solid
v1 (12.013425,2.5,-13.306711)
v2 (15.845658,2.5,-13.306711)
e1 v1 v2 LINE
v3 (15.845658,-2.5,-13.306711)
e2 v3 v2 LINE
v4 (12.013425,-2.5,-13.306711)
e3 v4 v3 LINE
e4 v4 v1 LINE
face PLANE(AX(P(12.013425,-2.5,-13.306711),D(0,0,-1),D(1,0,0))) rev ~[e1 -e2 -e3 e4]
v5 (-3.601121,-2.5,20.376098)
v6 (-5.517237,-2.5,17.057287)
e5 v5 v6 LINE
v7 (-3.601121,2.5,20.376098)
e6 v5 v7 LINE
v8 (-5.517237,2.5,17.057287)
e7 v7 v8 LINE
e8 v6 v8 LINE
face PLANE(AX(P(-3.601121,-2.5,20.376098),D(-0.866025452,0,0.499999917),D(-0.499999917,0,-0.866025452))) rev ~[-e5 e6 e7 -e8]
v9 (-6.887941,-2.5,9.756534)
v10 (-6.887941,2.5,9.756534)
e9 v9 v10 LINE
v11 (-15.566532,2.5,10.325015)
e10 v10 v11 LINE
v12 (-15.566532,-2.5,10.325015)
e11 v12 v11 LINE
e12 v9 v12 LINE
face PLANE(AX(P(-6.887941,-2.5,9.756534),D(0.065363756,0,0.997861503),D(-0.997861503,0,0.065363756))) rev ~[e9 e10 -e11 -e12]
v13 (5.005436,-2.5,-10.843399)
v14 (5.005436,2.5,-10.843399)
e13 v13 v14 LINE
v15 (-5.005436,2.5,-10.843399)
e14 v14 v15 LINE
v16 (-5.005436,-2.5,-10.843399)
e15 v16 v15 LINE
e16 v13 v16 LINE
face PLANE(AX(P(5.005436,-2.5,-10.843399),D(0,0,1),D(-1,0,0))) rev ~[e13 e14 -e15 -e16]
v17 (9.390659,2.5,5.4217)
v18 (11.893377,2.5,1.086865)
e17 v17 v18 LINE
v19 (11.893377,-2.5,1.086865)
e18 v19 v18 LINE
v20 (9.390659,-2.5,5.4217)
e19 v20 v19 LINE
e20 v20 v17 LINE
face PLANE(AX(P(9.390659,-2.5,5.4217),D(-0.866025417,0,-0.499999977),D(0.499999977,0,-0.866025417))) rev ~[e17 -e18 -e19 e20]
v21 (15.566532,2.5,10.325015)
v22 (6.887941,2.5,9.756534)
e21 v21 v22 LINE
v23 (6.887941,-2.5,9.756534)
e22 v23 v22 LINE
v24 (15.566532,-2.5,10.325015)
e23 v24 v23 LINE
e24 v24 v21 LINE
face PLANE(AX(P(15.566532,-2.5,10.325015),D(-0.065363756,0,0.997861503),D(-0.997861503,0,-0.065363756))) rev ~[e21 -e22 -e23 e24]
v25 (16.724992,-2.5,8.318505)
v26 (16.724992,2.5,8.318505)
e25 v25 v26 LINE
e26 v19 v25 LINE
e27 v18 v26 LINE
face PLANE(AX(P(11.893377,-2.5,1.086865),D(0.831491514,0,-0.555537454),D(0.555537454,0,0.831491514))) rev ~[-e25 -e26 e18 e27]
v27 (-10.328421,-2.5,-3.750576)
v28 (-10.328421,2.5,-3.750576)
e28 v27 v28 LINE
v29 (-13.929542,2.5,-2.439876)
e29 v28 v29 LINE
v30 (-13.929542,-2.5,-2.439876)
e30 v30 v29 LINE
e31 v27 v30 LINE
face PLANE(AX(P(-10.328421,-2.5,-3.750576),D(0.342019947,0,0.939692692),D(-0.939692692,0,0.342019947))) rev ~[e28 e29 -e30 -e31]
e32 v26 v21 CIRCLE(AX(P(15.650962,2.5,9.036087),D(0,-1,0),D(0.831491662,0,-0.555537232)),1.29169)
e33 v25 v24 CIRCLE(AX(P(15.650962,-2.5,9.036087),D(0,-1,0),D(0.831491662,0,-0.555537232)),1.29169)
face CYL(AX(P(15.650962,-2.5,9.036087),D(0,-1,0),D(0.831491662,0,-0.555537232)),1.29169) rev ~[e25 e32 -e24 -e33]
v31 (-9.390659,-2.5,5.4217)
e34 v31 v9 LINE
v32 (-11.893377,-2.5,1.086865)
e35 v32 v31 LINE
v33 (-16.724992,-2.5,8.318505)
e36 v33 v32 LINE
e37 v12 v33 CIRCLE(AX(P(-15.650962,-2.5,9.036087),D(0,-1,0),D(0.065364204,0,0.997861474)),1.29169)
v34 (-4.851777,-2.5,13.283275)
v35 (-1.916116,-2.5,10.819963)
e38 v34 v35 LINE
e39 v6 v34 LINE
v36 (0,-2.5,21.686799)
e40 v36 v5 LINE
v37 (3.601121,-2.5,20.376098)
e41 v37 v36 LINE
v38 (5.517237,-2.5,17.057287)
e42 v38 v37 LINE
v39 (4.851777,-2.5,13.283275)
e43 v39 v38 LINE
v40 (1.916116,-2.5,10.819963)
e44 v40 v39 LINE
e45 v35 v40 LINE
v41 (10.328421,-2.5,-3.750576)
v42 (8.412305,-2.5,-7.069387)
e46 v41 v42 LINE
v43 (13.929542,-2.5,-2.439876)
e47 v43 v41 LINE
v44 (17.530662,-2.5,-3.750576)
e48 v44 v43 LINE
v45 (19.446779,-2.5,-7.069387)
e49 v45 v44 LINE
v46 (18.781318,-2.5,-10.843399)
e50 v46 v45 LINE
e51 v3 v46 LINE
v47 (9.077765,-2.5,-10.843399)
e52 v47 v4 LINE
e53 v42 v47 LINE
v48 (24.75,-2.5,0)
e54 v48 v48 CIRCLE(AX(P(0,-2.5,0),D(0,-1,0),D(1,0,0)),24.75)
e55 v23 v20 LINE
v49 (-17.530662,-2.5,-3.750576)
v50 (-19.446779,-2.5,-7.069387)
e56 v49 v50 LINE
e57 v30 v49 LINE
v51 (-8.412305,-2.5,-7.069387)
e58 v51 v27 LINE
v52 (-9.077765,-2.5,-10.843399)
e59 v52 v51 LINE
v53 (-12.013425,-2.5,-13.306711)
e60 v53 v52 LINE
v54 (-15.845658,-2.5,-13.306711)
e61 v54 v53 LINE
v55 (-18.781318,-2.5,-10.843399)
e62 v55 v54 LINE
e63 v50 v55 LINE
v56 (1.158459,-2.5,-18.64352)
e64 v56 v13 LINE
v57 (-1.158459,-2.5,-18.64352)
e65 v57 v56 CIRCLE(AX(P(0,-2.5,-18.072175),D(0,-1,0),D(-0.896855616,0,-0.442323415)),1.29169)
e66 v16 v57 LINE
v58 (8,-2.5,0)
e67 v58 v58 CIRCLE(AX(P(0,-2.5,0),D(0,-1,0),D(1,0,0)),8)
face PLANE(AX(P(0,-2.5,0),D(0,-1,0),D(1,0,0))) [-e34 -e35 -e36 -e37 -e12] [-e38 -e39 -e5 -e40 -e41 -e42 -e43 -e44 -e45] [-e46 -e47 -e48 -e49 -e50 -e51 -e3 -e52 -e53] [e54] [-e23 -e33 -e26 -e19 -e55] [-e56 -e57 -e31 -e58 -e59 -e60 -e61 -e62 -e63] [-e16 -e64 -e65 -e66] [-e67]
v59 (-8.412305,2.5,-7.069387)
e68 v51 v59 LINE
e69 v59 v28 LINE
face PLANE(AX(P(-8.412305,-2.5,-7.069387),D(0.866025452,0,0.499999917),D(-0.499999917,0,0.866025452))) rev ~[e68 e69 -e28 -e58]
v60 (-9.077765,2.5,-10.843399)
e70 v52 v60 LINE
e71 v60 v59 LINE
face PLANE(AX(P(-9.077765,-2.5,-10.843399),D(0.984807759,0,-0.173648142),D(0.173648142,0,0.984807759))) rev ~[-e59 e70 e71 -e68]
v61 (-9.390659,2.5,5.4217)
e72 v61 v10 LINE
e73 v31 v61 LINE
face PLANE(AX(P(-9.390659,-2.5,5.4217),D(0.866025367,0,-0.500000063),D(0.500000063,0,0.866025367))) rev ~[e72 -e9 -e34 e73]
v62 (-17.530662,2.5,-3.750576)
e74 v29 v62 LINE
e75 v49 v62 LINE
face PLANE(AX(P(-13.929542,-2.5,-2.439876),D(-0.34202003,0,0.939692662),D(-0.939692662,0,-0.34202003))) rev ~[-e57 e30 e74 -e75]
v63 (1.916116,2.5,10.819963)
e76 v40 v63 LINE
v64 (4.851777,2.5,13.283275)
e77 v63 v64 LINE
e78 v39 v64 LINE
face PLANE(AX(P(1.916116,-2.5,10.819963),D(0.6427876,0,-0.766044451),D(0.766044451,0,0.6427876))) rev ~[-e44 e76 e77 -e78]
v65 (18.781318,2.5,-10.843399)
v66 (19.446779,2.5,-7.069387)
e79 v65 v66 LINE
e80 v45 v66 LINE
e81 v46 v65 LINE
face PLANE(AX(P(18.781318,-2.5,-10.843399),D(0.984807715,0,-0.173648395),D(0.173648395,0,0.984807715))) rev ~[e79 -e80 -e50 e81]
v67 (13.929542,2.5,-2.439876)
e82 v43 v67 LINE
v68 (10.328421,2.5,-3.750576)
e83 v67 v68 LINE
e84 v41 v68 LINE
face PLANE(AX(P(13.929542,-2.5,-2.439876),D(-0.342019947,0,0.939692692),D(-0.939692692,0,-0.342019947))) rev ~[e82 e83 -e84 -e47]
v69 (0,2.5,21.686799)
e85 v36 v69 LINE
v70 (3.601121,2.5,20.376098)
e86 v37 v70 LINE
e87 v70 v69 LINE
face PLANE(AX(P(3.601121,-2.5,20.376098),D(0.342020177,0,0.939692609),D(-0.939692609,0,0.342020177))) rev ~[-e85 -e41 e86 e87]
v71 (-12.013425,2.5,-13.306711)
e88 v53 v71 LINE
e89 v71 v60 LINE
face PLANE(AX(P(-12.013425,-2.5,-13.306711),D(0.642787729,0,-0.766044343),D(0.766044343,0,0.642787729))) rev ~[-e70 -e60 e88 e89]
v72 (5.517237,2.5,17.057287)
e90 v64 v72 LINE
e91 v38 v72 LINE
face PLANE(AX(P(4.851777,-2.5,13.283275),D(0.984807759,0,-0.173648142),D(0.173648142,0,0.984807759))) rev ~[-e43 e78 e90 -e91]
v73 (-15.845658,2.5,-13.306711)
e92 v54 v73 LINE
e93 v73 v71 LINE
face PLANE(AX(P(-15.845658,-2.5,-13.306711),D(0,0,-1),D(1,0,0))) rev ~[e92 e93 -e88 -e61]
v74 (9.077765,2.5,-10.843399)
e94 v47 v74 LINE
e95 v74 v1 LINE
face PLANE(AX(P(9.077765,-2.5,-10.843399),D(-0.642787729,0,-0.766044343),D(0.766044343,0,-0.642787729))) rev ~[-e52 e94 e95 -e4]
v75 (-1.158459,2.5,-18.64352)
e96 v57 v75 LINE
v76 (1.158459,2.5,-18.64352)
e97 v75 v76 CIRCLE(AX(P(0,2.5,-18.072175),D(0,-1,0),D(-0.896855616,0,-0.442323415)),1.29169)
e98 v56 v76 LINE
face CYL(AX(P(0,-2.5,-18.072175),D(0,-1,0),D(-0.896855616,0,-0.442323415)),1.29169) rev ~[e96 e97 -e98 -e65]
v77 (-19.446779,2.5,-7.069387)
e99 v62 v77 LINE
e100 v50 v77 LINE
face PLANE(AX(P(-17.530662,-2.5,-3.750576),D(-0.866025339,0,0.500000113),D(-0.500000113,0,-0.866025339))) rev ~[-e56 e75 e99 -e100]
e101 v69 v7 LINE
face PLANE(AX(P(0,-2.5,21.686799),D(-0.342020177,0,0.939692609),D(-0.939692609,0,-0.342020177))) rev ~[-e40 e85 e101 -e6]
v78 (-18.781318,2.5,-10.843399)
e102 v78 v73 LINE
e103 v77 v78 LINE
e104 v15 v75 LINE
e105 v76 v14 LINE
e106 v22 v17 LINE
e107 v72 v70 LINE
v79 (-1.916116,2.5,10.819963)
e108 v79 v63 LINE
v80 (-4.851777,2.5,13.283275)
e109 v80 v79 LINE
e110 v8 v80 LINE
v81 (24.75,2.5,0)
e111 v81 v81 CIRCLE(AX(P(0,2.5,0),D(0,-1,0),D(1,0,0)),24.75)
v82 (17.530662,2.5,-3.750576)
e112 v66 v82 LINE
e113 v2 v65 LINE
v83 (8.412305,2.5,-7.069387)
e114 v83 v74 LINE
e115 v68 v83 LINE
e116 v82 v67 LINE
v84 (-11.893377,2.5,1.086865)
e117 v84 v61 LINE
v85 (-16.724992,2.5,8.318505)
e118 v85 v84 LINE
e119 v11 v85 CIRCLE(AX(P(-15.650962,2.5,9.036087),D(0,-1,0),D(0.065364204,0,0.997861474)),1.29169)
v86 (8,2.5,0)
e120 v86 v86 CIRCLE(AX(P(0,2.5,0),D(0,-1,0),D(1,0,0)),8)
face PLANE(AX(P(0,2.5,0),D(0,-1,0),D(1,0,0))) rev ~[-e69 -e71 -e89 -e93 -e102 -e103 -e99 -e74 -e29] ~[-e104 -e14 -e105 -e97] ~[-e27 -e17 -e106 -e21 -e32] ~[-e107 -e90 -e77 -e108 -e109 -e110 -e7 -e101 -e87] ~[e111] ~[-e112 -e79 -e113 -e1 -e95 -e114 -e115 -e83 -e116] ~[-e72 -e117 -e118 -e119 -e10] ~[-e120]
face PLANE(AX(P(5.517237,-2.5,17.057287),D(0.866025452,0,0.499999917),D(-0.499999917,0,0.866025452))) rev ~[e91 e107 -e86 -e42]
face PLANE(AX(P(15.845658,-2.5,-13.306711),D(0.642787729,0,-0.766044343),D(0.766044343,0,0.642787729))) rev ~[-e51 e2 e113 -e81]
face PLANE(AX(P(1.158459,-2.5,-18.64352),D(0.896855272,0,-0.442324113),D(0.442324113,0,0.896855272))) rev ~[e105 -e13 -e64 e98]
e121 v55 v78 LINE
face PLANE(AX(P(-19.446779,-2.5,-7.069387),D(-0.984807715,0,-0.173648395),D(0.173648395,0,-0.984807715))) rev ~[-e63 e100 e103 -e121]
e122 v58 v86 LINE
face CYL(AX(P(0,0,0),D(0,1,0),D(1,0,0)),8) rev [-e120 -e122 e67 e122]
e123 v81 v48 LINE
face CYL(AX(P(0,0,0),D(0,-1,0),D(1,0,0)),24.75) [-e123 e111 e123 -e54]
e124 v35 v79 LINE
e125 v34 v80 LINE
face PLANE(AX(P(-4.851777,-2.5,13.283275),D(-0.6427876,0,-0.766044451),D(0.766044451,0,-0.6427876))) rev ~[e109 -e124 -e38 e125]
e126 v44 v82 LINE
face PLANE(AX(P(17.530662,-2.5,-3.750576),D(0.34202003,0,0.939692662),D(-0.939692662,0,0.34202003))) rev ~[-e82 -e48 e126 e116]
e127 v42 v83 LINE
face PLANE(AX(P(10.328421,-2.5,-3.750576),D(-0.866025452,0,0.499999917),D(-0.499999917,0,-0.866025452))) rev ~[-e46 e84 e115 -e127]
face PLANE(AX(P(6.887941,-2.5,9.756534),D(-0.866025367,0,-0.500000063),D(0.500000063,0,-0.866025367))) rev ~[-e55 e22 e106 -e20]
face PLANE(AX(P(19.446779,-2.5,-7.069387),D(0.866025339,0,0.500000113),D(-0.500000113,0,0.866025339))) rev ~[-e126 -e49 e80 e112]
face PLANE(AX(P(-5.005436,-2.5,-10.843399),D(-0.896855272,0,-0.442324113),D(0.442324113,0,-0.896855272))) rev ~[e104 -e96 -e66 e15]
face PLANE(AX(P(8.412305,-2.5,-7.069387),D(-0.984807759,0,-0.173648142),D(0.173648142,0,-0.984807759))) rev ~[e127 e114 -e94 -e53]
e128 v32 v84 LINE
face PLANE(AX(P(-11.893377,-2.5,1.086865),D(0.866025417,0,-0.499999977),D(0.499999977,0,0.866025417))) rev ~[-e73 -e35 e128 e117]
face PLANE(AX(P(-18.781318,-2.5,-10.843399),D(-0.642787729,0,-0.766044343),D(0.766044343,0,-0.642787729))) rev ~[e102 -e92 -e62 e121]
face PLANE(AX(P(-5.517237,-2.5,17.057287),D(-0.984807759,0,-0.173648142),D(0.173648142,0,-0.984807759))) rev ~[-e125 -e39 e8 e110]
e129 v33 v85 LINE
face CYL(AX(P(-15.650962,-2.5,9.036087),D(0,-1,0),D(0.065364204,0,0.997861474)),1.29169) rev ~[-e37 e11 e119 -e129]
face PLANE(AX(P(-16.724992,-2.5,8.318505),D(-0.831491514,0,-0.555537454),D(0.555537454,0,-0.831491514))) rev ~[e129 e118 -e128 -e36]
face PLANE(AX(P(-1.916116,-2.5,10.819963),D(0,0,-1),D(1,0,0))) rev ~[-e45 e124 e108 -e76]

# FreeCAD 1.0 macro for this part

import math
import FreeCAD as App
import Part
import Sketcher

V = App.Vector
Q = App.Units.Quantity

doc = App.newDocument("Part")
body = doc.addObject("PartDesign::Body", "Body")

# Sketch on XZ plane
sketch1 = doc.addObject("Sketcher::SketchObject", "Sketch")
body.addObject(sketch1)
sketch1.AttachmentSupport = (doc.XZ_Plane, [""])
sketch1.MapMode = "FlatFace"
sketch1.addGeometry([
    Part.Circle(V(0, 0, 0), V(0, 0, 1), 25),
    Part.Circle(V(0, 0, 0), V(0, 0, 1), 8),
], False)
sketch1.addConstraint([
    Sketcher.Constraint("Coincident", 0, 3, -1, 1),
    Sketcher.Constraint("Coincident", 1, 3, -1, 1),
    Sketcher.Constraint("Diameter", 1, 16.0),
    Sketcher.Constraint("Diameter", 0, 49.5),
])
pad1 = doc.addObject("PartDesign::Pad", "Pad")
body.addObject(pad1)
pad1.Profile = sketch1
pad1.Length = 5
pad1.Midplane = True

# Sketch on XZ plane
sketch2 = doc.addObject("Sketcher::SketchObject", "Sketch001")
body.addObject(sketch2)
sketch2.AttachmentSupport = (doc.XZ_Plane, [""])
sketch2.MapMode = "FlatFace"
sketch2.AttachmentOffset = App.Placement(V(0, 0, 2.5), App.Rotation())
sketch2.addGeometry([
    Part.LineSegment(V(-1.9, 10.8, 0), V(1.9, 10.8, 0)),  # 0
    Part.LineSegment(V(1.9, 10.8, 0), V(4.9, 13.3, 0)),  # 1
    Part.LineSegment(V(4.9, 13.3, 0), V(5.5, 17.1, 0)),  # 2
    Part.LineSegment(V(5.5, 17.1, 0), V(3.6, 20.4, 0)),  # 3
    Part.LineSegment(V(3.6, 20.4, 0), V(0, 21.7, 0)),  # 4
    Part.LineSegment(V(0, 21.7, 0), V(-3.6, 20.4, 0)),  # 5
    Part.LineSegment(V(-3.6, 20.4, 0), V(-5.5, 17.1, 0)),  # 6
    Part.LineSegment(V(-5.5, 17.1, 0), V(-4.9, 13.3, 0)),  # 7
    Part.LineSegment(V(-4.9, 13.3, 0), V(-1.9, 10.8, 0)),  # 8
    Part.LineSegment(V(-19.4, -7.1, 0), V(-18.8, -10.8, 0)),  # 9
    Part.LineSegment(V(-18.8, -10.8, 0), V(-15.8, -13.3, 0)),  # 10
    Part.LineSegment(V(-15.8, -13.3, 0), V(-12, -13.3, 0)),  # 11
    Part.LineSegment(V(-12, -13.3, 0), V(-9.1, -10.8, 0)),  # 12
    Part.LineSegment(V(-9.1, -10.8, 0), V(-8.4, -7.1, 0)),  # 13
    Part.LineSegment(V(-8.4, -7.1, 0), V(-10.3, -3.8, 0)),  # 14
    Part.LineSegment(V(-10.3, -3.8, 0), V(-13.9, -2.4, 0)),  # 15
    Part.LineSegment(V(-13.9, -2.4, 0), V(-17.5, -3.8, 0)),  # 16
    Part.LineSegment(V(-17.5, -3.8, 0), V(-19.4, -7.1, 0)),  # 17
    Part.LineSegment(V(15.8, -13.3, 0), V(18.8, -10.8, 0)),  # 18
    Part.LineSegment(V(18.8, -10.8, 0), V(19.4, -7.1, 0)),  # 19
    Part.LineSegment(V(19.4, -7.1, 0), V(17.5, -3.8, 0)),  # 20
    Part.LineSegment(V(17.5, -3.8, 0), V(13.9, -2.4, 0)),  # 21
    Part.LineSegment(V(13.9, -2.4, 0), V(10.3, -3.8, 0)),  # 22
    Part.LineSegment(V(10.3, -3.8, 0), V(8.4, -7.1, 0)),  # 23
    Part.LineSegment(V(8.4, -7.1, 0), V(9.1, -10.8, 0)),  # 24
    Part.LineSegment(V(9.1, -10.8, 0), V(12, -13.3, 0)),  # 25
    Part.LineSegment(V(12, -13.3, 0), V(15.8, -13.3, 0)),  # 26
    Part.ArcOfCircle(Part.Circle(V(0, -18.1, 0), V(0, 0, 1), 1.3), math.radians(-154), math.radians(-26)),  # 27
    Part.LineSegment(V(1.2, -18.6, 0), V(5, -10.8, 0)),  # 28
    Part.LineSegment(V(5, -10.8, 0), V(-5, -10.8, 0)),  # 29
    Part.LineSegment(V(-5, -10.8, 0), V(-1.2, -18.6, 0)),  # 30
    Part.LineSegment(V(9.4, 5.4, 0), V(11.9, 1.1, 0)),  # 31
    Part.LineSegment(V(11.9, 1.1, 0), V(16.7, 8.3, 0)),  # 32
    Part.ArcOfCircle(Part.Circle(V(15.7, 9, 0), V(0, 0, 1), 1.3), math.radians(-34), math.radians(94)),  # 33
    Part.LineSegment(V(15.6, 10.3, 0), V(6.9, 9.8, 0)),  # 34
    Part.LineSegment(V(6.9, 9.8, 0), V(9.4, 5.4, 0)),  # 35
    Part.LineSegment(V(-9.4, 5.4, 0), V(-6.9, 9.8, 0)),  # 36
    Part.LineSegment(V(-6.9, 9.8, 0), V(-15.6, 10.3, 0)),  # 37
    Part.ArcOfCircle(Part.Circle(V(-15.7, 9, 0), V(0, 0, 1), 1.3), math.radians(86), math.radians(214)),  # 38
    Part.LineSegment(V(-16.7, 8.3, 0), V(-11.9, 1.1, 0)),  # 39
    Part.LineSegment(V(-11.9, 1.1, 0), V(-9.4, 5.4, 0)),  # 40
], False)
sketch2.addConstraint([
    Sketcher.Constraint("Coincident", 0, 2, 1, 1),
    Sketcher.Constraint("Coincident", 1, 2, 2, 1),
    Sketcher.Constraint("Coincident", 2, 2, 3, 1),
    Sketcher.Constraint("Coincident", 3, 2, 4, 1),
    Sketcher.Constraint("Coincident", 4, 2, 5, 1),
    Sketcher.Constraint("Coincident", 5, 2, 6, 1),
    Sketcher.Constraint("Coincident", 6, 2, 7, 1),
    Sketcher.Constraint("Coincident", 7, 2, 8, 1),
    Sketcher.Constraint("Coincident", 8, 2, 0, 1),
    Sketcher.Constraint("Coincident", 9, 2, 10, 1),
    Sketcher.Constraint("Coincident", 10, 2, 11, 1),
    Sketcher.Constraint("Coincident", 11, 2, 12, 1),
    Sketcher.Constraint("Coincident", 12, 2, 13, 1),
    Sketcher.Constraint("Coincident", 13, 2, 14, 1),
    Sketcher.Constraint("Coincident", 14, 2, 15, 1),
    Sketcher.Constraint("Coincident", 15, 2, 16, 1),
    Sketcher.Constraint("Coincident", 16, 2, 17, 1),
    Sketcher.Constraint("Coincident", 17, 2, 9, 1),
    Sketcher.Constraint("Coincident", 18, 2, 19, 1),
    Sketcher.Constraint("Coincident", 19, 2, 20, 1),
    Sketcher.Constraint("Coincident", 20, 2, 21, 1),
    Sketcher.Constraint("Coincident", 21, 2, 22, 1),
    Sketcher.Constraint("Coincident", 22, 2, 23, 1),
    Sketcher.Constraint("Coincident", 23, 2, 24, 1),
    Sketcher.Constraint("Coincident", 24, 2, 25, 1),
    Sketcher.Constraint("Coincident", 25, 2, 26, 1),
    Sketcher.Constraint("Coincident", 26, 2, 18, 1),
    Sketcher.Constraint("Tangent", 27, 2, 28, 1),
    Sketcher.Constraint("Coincident", 28, 2, 29, 1),
    Sketcher.Constraint("Coincident", 29, 2, 30, 1),
    Sketcher.Constraint("Tangent", 30, 2, 27, 1),
    Sketcher.Constraint("Coincident", 31, 2, 32, 1),
    Sketcher.Constraint("Tangent", 32, 2, 33, 1),
    Sketcher.Constraint("Tangent", 33, 2, 34, 1),
    Sketcher.Constraint("Coincident", 34, 2, 35, 1),
    Sketcher.Constraint("Coincident", 35, 2, 31, 1),
    Sketcher.Constraint("Coincident", 36, 2, 37, 1),
    Sketcher.Constraint("Tangent", 37, 2, 38, 1),
    Sketcher.Constraint("Tangent", 38, 2, 39, 1),
    Sketcher.Constraint("Coincident", 39, 2, 40, 1),
    Sketcher.Constraint("Coincident", 40, 2, 36, 1),
    Sketcher.Constraint("Horizontal", 0),
    Sketcher.Constraint("Horizontal", 11),
    Sketcher.Constraint("Horizontal", 26),
    Sketcher.Constraint("Horizontal", 29),
    Sketcher.Constraint("Equal", 27, 33),
    Sketcher.Constraint("Equal", 33, 38),
    Sketcher.Constraint("Symmetric", 33, 3, 38, 3, -2),
    Sketcher.Constraint("Symmetric", 3, 2, 5, 2, -2),
    Sketcher.Constraint("Symmetric", 2, 2, 6, 2, -2),
    Sketcher.Constraint("Symmetric", 1, 2, 7, 2, -2),
    Sketcher.Constraint("Symmetric", 9, 2, 18, 2, -2),
    Sketcher.Constraint("Symmetric", 17, 2, 19, 2, -2),
    Sketcher.Constraint("Symmetric", 16, 2, 20, 2, -2),
    Sketcher.Constraint("Symmetric", 15, 2, 21, 2, -2),
    Sketcher.Constraint("Symmetric", 14, 2, 22, 2, -2),
    Sketcher.Constraint("Symmetric", 13, 2, 23, 2, -2),
    Sketcher.Constraint("Symmetric", 12, 2, 24, 2, -2),
    Sketcher.Constraint("Symmetric", 11, 2, 25, 2, -2),
    Sketcher.Constraint("Symmetric", 27, 2, 30, 2, -2),
    Sketcher.Constraint("Symmetric", 34, 2, 36, 2, -2),
    Sketcher.Constraint("Symmetric", 31, 2, 39, 2, -2),
    Sketcher.Constraint("Symmetric", 35, 2, 40, 2, -2),
    Sketcher.Constraint("PointOnObject", 4, 2, -2),
    Sketcher.Constraint("Parallel", 7, 9),
    Sketcher.Constraint("Parallel", 8, 10),
    Sketcher.Constraint("Parallel", 1, 12),
    Sketcher.Constraint("Parallel", 2, 13),
    Sketcher.Constraint("Parallel", 3, 14),
    Sketcher.Constraint("Parallel", 4, 15),
    Sketcher.Constraint("Parallel", 5, 16),
    Sketcher.Constraint("Parallel", 6, 17),
    Sketcher.Constraint("Parallel", 12, 18),
    Sketcher.Constraint("Parallel", 10, 25),
    Sketcher.Constraint("Parallel", 20, 31),
    Sketcher.Constraint("Parallel", 31, 35),
    Sketcher.Constraint("Horizontal", 9, 2, 12, 2),
    Sketcher.Constraint("Horizontal", 14, 2, 16, 2),
    Sketcher.Constraint("Horizontal", 13, 2, 17, 2),
    Sketcher.Constraint("Horizontal", 24, 2, 28, 2),
    Sketcher.Constraint("Equal", 0, 11),
    Sketcher.Constraint("Equal", 1, 2),
    Sketcher.Constraint("Equal", 2, 3),
    Sketcher.Constraint("Equal", 3, 4),
    Sketcher.Constraint("Equal", 8, 9),
    Sketcher.Constraint("Equal", 9, 10),
    Sketcher.Constraint("Equal", 13, 14),
    Sketcher.Constraint("Equal", 30, 32),
    Sketcher.Constraint("Equal", 32, 34),
    Sketcher.Constraint("Equal", 31, 35),
    Sketcher.Constraint("Angle", 1, Q("39.999999 deg")),
    Sketcher.Constraint("Angle", 2, Q("80.000002 deg")),
    Sketcher.Constraint("Angle", 3, Q("119.999995 deg")),
    Sketcher.Constraint("Angle", 4, Q("159.999998 deg")),
    Sketcher.Constraint("Radius", 27, 1.29169),
    Sketcher.Constraint("DistanceX", 1, 2, 19, 2, 14.595002),
    Sketcher.Constraint("DistanceX", 0, 1, 0, 2, 3.832232),
    Sketcher.Constraint("DistanceY", -1, 1, 4, 2, 21.686799),
    Sketcher.Constraint("DistanceY", 9, 2, -1, 1, 10.843399),
    Sketcher.Constraint("DistanceY", -1, 1, 35, 2, 5.4217),
    Sketcher.Constraint("DistanceY", 33, 3, 2, 2, 8.0212),
    Sketcher.Constraint("DistanceX", 38, 3, 2, 2, 21.168199),
    Sketcher.Constraint("Distance", 28, 8.69719),
    Sketcher.Constraint("DistanceX", 29, 2, 29, 1, 10.010872),
])
pocket1 = doc.addObject("PartDesign::Pocket", "Pocket")
body.addObject(pocket1)
pocket1.Profile = sketch2
pocket1.Type = "ThroughAll"

doc.recompute()
